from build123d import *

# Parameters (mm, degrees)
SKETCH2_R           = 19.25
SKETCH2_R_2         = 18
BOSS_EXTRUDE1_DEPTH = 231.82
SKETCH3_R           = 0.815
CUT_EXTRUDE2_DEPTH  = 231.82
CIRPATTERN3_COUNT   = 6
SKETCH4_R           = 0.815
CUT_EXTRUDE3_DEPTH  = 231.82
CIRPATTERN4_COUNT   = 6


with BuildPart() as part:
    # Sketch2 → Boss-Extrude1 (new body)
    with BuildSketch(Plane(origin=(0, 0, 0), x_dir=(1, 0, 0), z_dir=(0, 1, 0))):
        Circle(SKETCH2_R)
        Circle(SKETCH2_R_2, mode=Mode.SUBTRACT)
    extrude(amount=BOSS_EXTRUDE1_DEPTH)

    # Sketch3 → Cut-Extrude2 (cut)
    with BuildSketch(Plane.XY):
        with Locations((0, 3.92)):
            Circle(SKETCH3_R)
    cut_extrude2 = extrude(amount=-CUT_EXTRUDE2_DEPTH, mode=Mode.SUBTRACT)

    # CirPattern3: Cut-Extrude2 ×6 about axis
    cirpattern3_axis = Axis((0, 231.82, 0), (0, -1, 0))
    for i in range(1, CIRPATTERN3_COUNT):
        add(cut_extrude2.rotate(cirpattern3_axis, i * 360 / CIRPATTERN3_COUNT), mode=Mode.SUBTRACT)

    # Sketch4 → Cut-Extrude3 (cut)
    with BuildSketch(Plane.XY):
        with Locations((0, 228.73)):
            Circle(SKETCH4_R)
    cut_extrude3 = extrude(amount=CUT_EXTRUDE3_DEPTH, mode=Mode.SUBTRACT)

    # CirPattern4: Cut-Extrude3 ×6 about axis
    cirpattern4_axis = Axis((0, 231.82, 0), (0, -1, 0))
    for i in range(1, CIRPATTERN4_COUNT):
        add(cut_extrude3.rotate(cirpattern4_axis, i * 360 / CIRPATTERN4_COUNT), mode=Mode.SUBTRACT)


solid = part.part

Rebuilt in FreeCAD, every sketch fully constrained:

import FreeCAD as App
import Part
import Sketcher
from FreeCAD import Vector

doc = App.newDocument("Part")
body = doc.addObject("PartDesign::Body", "Body")

# Sketch on XZ plane
sketch1 = doc.addObject("Sketcher::SketchObject", "Sketch")
body.addObject(sketch1)
sketch1.AttachmentSupport = (doc.XZ_Plane, [""])
sketch1.MapMode = "FlatFace"
sketch1.addGeometry([
    Part.Circle(Vector(0, 0, 0), Vector(0, 0, 1), 19.25),
    Part.Circle(Vector(0, 0, 0), Vector(0, 0, 1), 18),
], False)
sketch1.addConstraint([
    Sketcher.Constraint("Coincident", 0, 3, -1, 1),
    Sketcher.Constraint("Coincident", 1, 3, -1, 1),
    Sketcher.Constraint("Diameter", 1, 36.0),
    Sketcher.Constraint("Diameter", 0, 38.5),
])
pad1 = doc.addObject("PartDesign::Pad", "Pad")
body.addObject(pad1)
pad1.Profile = sketch1
pad1.Length = 231.82
pad1.Reversed = True

# Sketch on XY plane
sketch2 = doc.addObject("Sketcher::SketchObject", "Sketch001")
body.addObject(sketch2)
sketch2.AttachmentSupport = (doc.XY_Plane, [""])
sketch2.MapMode = "FlatFace"
sketch2.addGeometry(Part.Circle(Vector(0, 3.92, 0), Vector(0, 0, 1), 0.815), False)
sketch2.addConstraint([
    Sketcher.Constraint("PointOnObject", 0, 3, -2),
    Sketcher.Constraint("Diameter", 0, 1.63),
    Sketcher.Constraint("DistanceY", -1, 1, 0, 3, 3.92),
])
pocket1 = doc.addObject("PartDesign::Pocket", "Pocket")
body.addObject(pocket1)
pocket1.Profile = sketch2
pocket1.Length = 231.82
doc.recompute()

polarpattern = doc.addObject("PartDesign::PolarPattern", "PolarPattern")
body.addObject(polarpattern)
polarpattern.Originals = [pocket1]
polarpattern.Axis = (doc.Y_Axis, [""])
polarpattern.Angle = 360
polarpattern.Occurrences = 6
body.Tip = polarpattern

# Sketch on XY plane
sketch3 = doc.addObject("Sketcher::SketchObject", "Sketch002")
body.addObject(sketch3)
sketch3.AttachmentSupport = (doc.XY_Plane, [""])
sketch3.MapMode = "FlatFace"
sketch3.addGeometry(Part.Circle(Vector(0, 228.73, 0), Vector(0, 0, 1), 0.815), False)
sketch3.addConstraint([
    Sketcher.Constraint("PointOnObject", 0, 3, -2),
    Sketcher.Constraint("Diameter", 0, 1.63),
    Sketcher.Constraint("DistanceY", -1, 1, 0, 3, 228.73),
])
pocket2 = doc.addObject("PartDesign::Pocket", "Pocket001")
body.addObject(pocket2)
pocket2.Profile = sketch3
pocket2.Length = 231.82
pocket2.Reversed = True
doc.recompute()

polarpattern2 = doc.addObject("PartDesign::PolarPattern", "PolarPattern001")
body.addObject(polarpattern2)
polarpattern2.Originals = [pocket2]
polarpattern2.Axis = (doc.Y_Axis, [""])
polarpattern2.Angle = 360
polarpattern2.Occurrences = 6
body.Tip = polarpattern2

doc.recompute()
